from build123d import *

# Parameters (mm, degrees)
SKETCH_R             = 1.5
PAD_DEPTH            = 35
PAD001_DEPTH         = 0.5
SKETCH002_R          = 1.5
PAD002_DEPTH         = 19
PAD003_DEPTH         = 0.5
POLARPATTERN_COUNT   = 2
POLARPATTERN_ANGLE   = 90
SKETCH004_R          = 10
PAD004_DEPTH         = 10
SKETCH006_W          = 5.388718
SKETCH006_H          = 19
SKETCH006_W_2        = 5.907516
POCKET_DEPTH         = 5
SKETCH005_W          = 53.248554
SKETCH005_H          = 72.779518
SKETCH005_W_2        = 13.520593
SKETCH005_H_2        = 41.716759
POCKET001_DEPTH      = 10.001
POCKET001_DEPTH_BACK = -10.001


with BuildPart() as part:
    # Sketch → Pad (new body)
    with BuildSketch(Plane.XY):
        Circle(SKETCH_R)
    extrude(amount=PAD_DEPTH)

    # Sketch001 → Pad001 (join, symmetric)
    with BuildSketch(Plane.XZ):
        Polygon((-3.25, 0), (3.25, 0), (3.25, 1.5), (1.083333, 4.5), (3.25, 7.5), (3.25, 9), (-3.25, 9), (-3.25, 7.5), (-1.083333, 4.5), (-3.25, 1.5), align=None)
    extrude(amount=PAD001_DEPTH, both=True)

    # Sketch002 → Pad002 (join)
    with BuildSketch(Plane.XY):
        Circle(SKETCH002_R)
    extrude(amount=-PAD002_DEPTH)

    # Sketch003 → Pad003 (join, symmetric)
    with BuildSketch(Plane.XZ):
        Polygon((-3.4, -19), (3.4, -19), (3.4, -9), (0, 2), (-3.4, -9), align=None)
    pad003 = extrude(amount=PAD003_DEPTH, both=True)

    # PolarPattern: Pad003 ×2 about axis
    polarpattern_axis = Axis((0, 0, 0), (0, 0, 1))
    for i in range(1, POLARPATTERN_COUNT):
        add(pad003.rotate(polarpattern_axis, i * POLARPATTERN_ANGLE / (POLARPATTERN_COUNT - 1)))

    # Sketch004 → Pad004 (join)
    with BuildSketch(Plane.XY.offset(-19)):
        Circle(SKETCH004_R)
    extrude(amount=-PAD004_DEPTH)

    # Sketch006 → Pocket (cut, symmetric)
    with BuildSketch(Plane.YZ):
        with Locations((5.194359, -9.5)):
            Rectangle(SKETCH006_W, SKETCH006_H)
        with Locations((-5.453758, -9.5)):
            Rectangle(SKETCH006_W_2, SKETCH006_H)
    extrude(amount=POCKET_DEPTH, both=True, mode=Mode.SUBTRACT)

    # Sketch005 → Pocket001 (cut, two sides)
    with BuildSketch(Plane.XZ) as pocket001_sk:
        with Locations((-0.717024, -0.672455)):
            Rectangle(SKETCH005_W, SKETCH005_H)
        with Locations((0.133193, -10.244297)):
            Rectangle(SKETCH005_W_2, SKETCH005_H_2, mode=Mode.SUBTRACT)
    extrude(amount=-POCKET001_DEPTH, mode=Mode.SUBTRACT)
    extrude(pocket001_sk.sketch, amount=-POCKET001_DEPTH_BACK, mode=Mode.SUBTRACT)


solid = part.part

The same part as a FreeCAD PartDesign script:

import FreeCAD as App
import Part
import Sketcher

doc = App.newDocument("Part")
params = doc.addObject("Spreadsheet::Sheet", "Params")
for row, (alias, value) in enumerate([
    ("sketch1_diameter", "3 mm"),
    ("pad1_length", "35 mm"),
    ("sketch2_width", "6.5 mm"),
    ("sketch2_height", "1.5 mm"),
    ("pad2_length", "1 mm"),
    ("sketch3_diameter", "3 mm"),
    ("pad3_length", "19 mm"),
    ("sketch4_height", "10 mm"),
    ("sketch4_width", "6.8 mm"),
    ("pad4_length", "1 mm"),
    ("sketch5_diameter", "20 mm"),
    ("pad5_length", "10 mm"),
    ("sketch6_height", "19 mm"),
    ("pocket1_length", "10 mm"),
], start=1):
    params.set(f"A{row}", alias)
    params.set(f"B{row}", "=" + value)
    params.setAlias(f"B{row}", alias)

body = doc.addObject("PartDesign::Body", "Body")

sketch1 = doc.addObject("Sketcher::SketchObject", "Sketch")
body.addObject(sketch1)
sketch1.AttachmentSupport = (doc.XY_Plane, [""])
sketch1.MapMode = "FlatFace"
sketch1.addGeometry(Part.Circle(App.Vector(0, 0, 0), App.Vector(0, 0, 1), 1.5), False)
sketch1.addConstraint([
    Sketcher.Constraint("Coincident", 0, 3, -1, 1),
    Sketcher.Constraint("Diameter", 0, 3.0),
])
sketch1.setExpression("Constraints[1]", "Params.sketch1_diameter")
pad1 = doc.addObject("PartDesign::Pad", "Pad")
body.addObject(pad1)
pad1.Profile = sketch1
pad1.setExpression("Length", "Params.pad1_length")

sketch2 = doc.addObject("Sketcher::SketchObject", "Sketch001")
body.addObject(sketch2)
sketch2.AttachmentSupport = (doc.XZ_Plane, [""])
sketch2.MapMode = "FlatFace"
sketch2.addGeometry([
    Part.LineSegment(App.Vector(-3.25, 0, 0), App.Vector(3.25, 0, 0)),
    Part.LineSegment(App.Vector(3.25, 0, 0), App.Vector(3.25, 1.5, 0)),
    Part.LineSegment(App.Vector(3.25, 1.5, 0), App.Vector(1.083333, 4.5, 0)),
    Part.LineSegment(App.Vector(1.083333, 4.5, 0), App.Vector(3.25, 7.5, 0)),
    Part.LineSegment(App.Vector(3.25, 7.5, 0), App.Vector(3.25, 9, 0)),
    Part.LineSegment(App.Vector(3.25, 9, 0), App.Vector(-3.25, 9, 0)),
    Part.LineSegment(App.Vector(-3.25, 9, 0), App.Vector(-3.25, 7.5, 0)),
    Part.LineSegment(App.Vector(-3.25, 7.5, 0), App.Vector(-1.083333, 4.5, 0)),
    Part.LineSegment(App.Vector(-1.083333, 4.5, 0), App.Vector(-3.25, 1.5, 0)),
    Part.LineSegment(App.Vector(-3.25, 1.5, 0), App.Vector(-3.25, 0, 0)),
], False)
sketch2.addConstraint([
    Sketcher.Constraint("Coincident", 0, 2, 1, 1),
    Sketcher.Constraint("Coincident", 1, 2, 2, 1),
    Sketcher.Constraint("Coincident", 2, 2, 3, 1),
    Sketcher.Constraint("Coincident", 3, 2, 4, 1),
    Sketcher.Constraint("Coincident", 4, 2, 5, 1),
    Sketcher.Constraint("Coincident", 5, 2, 6, 1),
    Sketcher.Constraint("Coincident", 6, 2, 7, 1),
    Sketcher.Constraint("Coincident", 7, 2, 8, 1),
    Sketcher.Constraint("Coincident", 8, 2, 9, 1),
    Sketcher.Constraint("Coincident", 9, 2, 0, 1),
    Sketcher.Constraint("Horizontal", 0),
    Sketcher.Constraint("Vertical", 1),
    Sketcher.Constraint("Vertical", 4),
    Sketcher.Constraint("Horizontal", 5),
    Sketcher.Constraint("Vertical", 6),
    Sketcher.Constraint("Vertical", 9),
    Sketcher.Constraint("Symmetric", 0, 2, 9, 2, -1, 1),
    Sketcher.Constraint("Symmetric", 3, 2, 6, 2, -2),
    Sketcher.Constraint("Symmetric", 2, 2, 7, 2, -2),
    Sketcher.Constraint("Parallel", 2, 7),
    Sketcher.Constraint("Parallel", 3, 8),
    Sketcher.Constraint("Vertical", 1, 2, 3, 2),
    Sketcher.Constraint("Equal", 1, 4),
    Sketcher.Constraint("DistanceX", 0, 1, 0, 2, 6.5),
    Sketcher.Constraint("DistanceY", 1, 1, 1, 2, 1.5),
    Sketcher.Constraint("DistanceY", -1, 1, 4, 2, 9.0),
    Sketcher.Constraint("Distance", 2, 3.700601),
])
sketch2.setExpression("Constraints[23]", "Params.sketch2_width")
sketch2.setExpression("Constraints[24]", "Params.sketch2_height")
pad2 = doc.addObject("PartDesign::Pad", "Pad001")
body.addObject(pad2)
pad2.Profile = sketch2
pad2.setExpression("Length", "Params.pad2_length")
pad2.Midplane = True

sketch3 = doc.addObject("Sketcher::SketchObject", "Sketch002")
body.addObject(sketch3)
sketch3.AttachmentSupport = (doc.XY_Plane, [""])
sketch3.MapMode = "FlatFace"
sketch3.addGeometry(Part.Circle(App.Vector(0, 0, 0), App.Vector(0, 0, 1), 1.5), False)
sketch3.addConstraint([
    Sketcher.Constraint("Coincident", 0, 3, -1, 1),
    Sketcher.Constraint("Diameter", 0, 3.0),
])
sketch3.setExpression("Constraints[1]", "Params.sketch3_diameter")
pad3 = doc.addObject("PartDesign::Pad", "Pad002")
body.addObject(pad3)
pad3.Profile = sketch3
pad3.setExpression("Length", "Params.pad3_length")
pad3.Reversed = True

sketch4 = doc.addObject("Sketcher::SketchObject", "Sketch003")
body.addObject(sketch4)
sketch4.AttachmentSupport = (doc.XZ_Plane, [""])
sketch4.MapMode = "FlatFace"
sketch4.addGeometry([
    Part.LineSegment(App.Vector(-3.4, -19, 0), App.Vector(3.4, -19, 0)),
    Part.LineSegment(App.Vector(3.4, -19, 0), App.Vector(3.4, -9, 0)),
    Part.LineSegment(App.Vector(3.4, -9, 0), App.Vector(0, 2, 0)),
    Part.LineSegment(App.Vector(0, 2, 0), App.Vector(-3.4, -9, 0)),
    Part.LineSegment(App.Vector(-3.4, -9, 0), App.Vector(-3.4, -19, 0)),
], False)
sketch4.addConstraint([
    Sketcher.Constraint("Coincident", 0, 2, 1, 1),
    Sketcher.Constraint("Coincident", 1, 2, 2, 1),
    Sketcher.Constraint("Coincident", 2, 2, 3, 1),
    Sketcher.Constraint("Coincident", 3, 2, 4, 1),
    Sketcher.Constraint("Coincident", 4, 2, 0, 1),
    Sketcher.Constraint("Horizontal", 0),
    Sketcher.Constraint("Vertical", 1),
    Sketcher.Constraint("Vertical", 4),
    Sketcher.Constraint("Symmetric", 1, 2, 3, 2, -2),
    Sketcher.Constraint("PointOnObject", 2, 2, -2),
    Sketcher.Constraint("DistanceY", 1, 1, 1, 2, 10.0),
    Sketcher.Constraint("DistanceX", 0, 1, 0, 2, 6.8),
    Sketcher.Constraint("DistanceY", 0, 2, -1, 1, 19.0),
    Sketcher.Constraint("DistanceY", -1, 1, 2, 2, 2.0),
])
sketch4.setExpression("Constraints[10]", "Params.sketch4_height")
sketch4.setExpression("Constraints[11]", "Params.sketch4_width")
pad4 = doc.addObject("PartDesign::Pad", "Pad003")
body.addObject(pad4)
pad4.Profile = sketch4
pad4.setExpression("Length", "Params.pad4_length")
pad4.Midplane = True
doc.recompute()

polarpattern = doc.addObject("PartDesign::PolarPattern", "PolarPattern")
body.addObject(polarpattern)
polarpattern.Originals = [pad4]
polarpattern.Axis = (doc.Z_Axis, [""])
polarpattern.Angle = 90
polarpattern.Occurrences = 2
body.Tip = polarpattern

sketch5 = doc.addObject("Sketcher::SketchObject", "Sketch004")
body.addObject(sketch5)
sketch5.AttachmentSupport = (doc.XY_Plane, [""])
sketch5.MapMode = "FlatFace"
sketch5.AttachmentOffset = App.Placement(App.Vector(0, 0, -19), App.Rotation())
sketch5.addGeometry(Part.Circle(App.Vector(0, 0, 0), App.Vector(0, 0, 1), 10), False)
sketch5.addConstraint([
    Sketcher.Constraint("Coincident", 0, 3, -1, 1),
    Sketcher.Constraint("Diameter", 0, 20.0),
])
sketch5.setExpression("Constraints[1]", "Params.sketch5_diameter")
pad5 = doc.addObject("PartDesign::Pad", "Pad004")
body.addObject(pad5)
pad5.Profile = sketch5
pad5.setExpression("Length", "Params.pad5_length")
pad5.Reversed = True

sketch6 = doc.addObject("Sketcher::SketchObject", "Sketch005")
body.addObject(sketch6)
sketch6.AttachmentSupport = (doc.YZ_Plane, [""])
sketch6.MapMode = "FlatFace"
sketch6.addGeometry([
    Part.LineSegment(App.Vector(2.5, 0, 0), App.Vector(2.5, -19, 0)),
    Part.LineSegment(App.Vector(2.5, -19, 0), App.Vector(7.888718, -19, 0)),
    Part.LineSegment(App.Vector(7.888718, -19, 0), App.Vector(7.888718, 0, 0)),
    Part.LineSegment(App.Vector(7.888718, 0, 0), App.Vector(2.5, 0, 0)),
    Part.LineSegment(App.Vector(-8.407516, 0, 0), App.Vector(-8.407516, -19, 0)),
    Part.LineSegment(App.Vector(-8.407516, -19, 0), App.Vector(-2.5, -19, 0)),
    Part.LineSegment(App.Vector(-2.5, -19, 0), App.Vector(-2.5, 0, 0)),
    Part.LineSegment(App.Vector(-2.5, 0, 0), App.Vector(-8.407516, 0, 0)),
], False)
sketch6.addConstraint([
    Sketcher.Constraint("Coincident", 0, 2, 1, 1),
    Sketcher.Constraint("Coincident", 1, 2, 2, 1),
    Sketcher.Constraint("Coincident", 2, 2, 3, 1),
    Sketcher.Constraint("Coincident", 3, 2, 0, 1),
    Sketcher.Constraint("Coincident", 4, 2, 5, 1),
    Sketcher.Constraint("Coincident", 5, 2, 6, 1),
    Sketcher.Constraint("Coincident", 6, 2, 7, 1),
    Sketcher.Constraint("Coincident", 7, 2, 4, 1),
    Sketcher.Constraint("Vertical", 0),
    Sketcher.Constraint("Horizontal", 1),
    Sketcher.Constraint("Vertical", 2),
    Sketcher.Constraint("Horizontal", 3),
    Sketcher.Constraint("Vertical", 4),
    Sketcher.Constraint("Horizontal", 5),
    Sketcher.Constraint("Vertical", 6),
    Sketcher.Constraint("Horizontal", 7),
    Sketcher.Constraint("Symmetric", 3, 2, 6, 2, -1, 1),
    Sketcher.Constraint("PointOnObject", 2, 2, -1),
    Sketcher.Constraint("Horizontal", 1, 2, 4, 2),
    Sketcher.Constraint("DistanceY", 0, 2, 0, 1, 19.0),
    Sketcher.Constraint("DistanceX", 5, 2, 0, 2, 5.0),
    Sketcher.Constraint("DistanceX", 1, 1, 1, 2, 5.388718),
    Sketcher.Constraint("DistanceX", 5, 1, 5, 2, 5.907516),
])
sketch6.setExpression("Constraints[19]", "Params.sketch6_height")
pocket1 = doc.addObject("PartDesign::Pocket", "Pocket")
body.addObject(pocket1)
pocket1.Profile = sketch6
pocket1.setExpression("Length", "Params.pocket1_length")
pocket1.Midplane = True

sketch7 = doc.addObject("Sketcher::SketchObject", "Sketch006")
body.addObject(sketch7)
sketch7.AttachmentSupport = (doc.XZ_Plane, [""])
sketch7.MapMode = "FlatFace"
sketch7.addGeometry([
    Part.LineSegment(App.Vector(-27.341301, 35.717304, 0), App.Vector(-27.341301, -37.062214, 0)),
    Part.LineSegment(App.Vector(-27.341301, -37.062214, 0), App.Vector(25.907253, -37.062214, 0)),
    Part.LineSegment(App.Vector(25.907253, -37.062214, 0), App.Vector(25.907253, 35.717304, 0)),
    Part.LineSegment(App.Vector(25.907253, 35.717304, 0), App.Vector(-27.341301, 35.717304, 0)),
    Part.LineSegment(App.Vector(6.89349, -31.102677, 0), App.Vector(-6.627103, -31.102677, 0)),
    Part.LineSegment(App.Vector(-6.627103, -31.102677, 0), App.Vector(-6.627103, 10.614083, 0)),
    Part.LineSegment(App.Vector(-6.627103, 10.614083, 0), App.Vector(6.89349, 10.614083, 0)),
    Part.LineSegment(App.Vector(6.89349, 10.614083, 0), App.Vector(6.89349, -31.102677, 0)),
], False)
sketch7.addConstraint([
    Sketcher.Constraint("Coincident", 0, 2, 1, 1),
    Sketcher.Constraint("Coincident", 1, 2, 2, 1),
    Sketcher.Constraint("Coincident", 2, 2, 3, 1),
    Sketcher.Constraint("Coincident", 3, 2, 0, 1),
    Sketcher.Constraint("Coincident", 4, 2, 5, 1),
    Sketcher.Constraint("Coincident", 5, 2, 6, 1),
    Sketcher.Constraint("Coincident", 6, 2, 7, 1),
    Sketcher.Constraint("Coincident", 7, 2, 4, 1),
    Sketcher.Constraint("Vertical", 0),
    Sketcher.Constraint("Horizontal", 1),
    Sketcher.Constraint("Vertical", 2),
    Sketcher.Constraint("Horizontal", 3),
    Sketcher.Constraint("Horizontal", 4),
    Sketcher.Constraint("Vertical", 5),
    Sketcher.Constraint("Horizontal", 6),
    Sketcher.Constraint("Vertical", 7),
    Sketcher.Constraint("DistanceY", 5, 1, 5, 2, 41.716759),
    Sketcher.Constraint("DistanceX", 0, 2, -1, 1, 27.341301),
    Sketcher.Constraint("DistanceX", 1, 1, 1, 2, 53.248554),
    Sketcher.Constraint("DistanceX", 4, 2, 4, 1, 13.520593),
    Sketcher.Constraint("DistanceY", 0, 2, 0, 1, 72.779518),
    Sketcher.Constraint("DistanceX", -1, 1, 6, 2, 6.89349),
    Sketcher.Constraint("DistanceY", 4, 2, 3, 2, 66.81998),
    Sketcher.Constraint("DistanceY", 0, 2, -1, 1, 37.062214),
])
pocket2 = doc.addObject("PartDesign::Pocket", "Pocket001")
body.addObject(pocket2)
pocket2.Profile = sketch7
pocket2.Type = "ThroughAll"
pocket2.Midplane = True

doc.recompute()
